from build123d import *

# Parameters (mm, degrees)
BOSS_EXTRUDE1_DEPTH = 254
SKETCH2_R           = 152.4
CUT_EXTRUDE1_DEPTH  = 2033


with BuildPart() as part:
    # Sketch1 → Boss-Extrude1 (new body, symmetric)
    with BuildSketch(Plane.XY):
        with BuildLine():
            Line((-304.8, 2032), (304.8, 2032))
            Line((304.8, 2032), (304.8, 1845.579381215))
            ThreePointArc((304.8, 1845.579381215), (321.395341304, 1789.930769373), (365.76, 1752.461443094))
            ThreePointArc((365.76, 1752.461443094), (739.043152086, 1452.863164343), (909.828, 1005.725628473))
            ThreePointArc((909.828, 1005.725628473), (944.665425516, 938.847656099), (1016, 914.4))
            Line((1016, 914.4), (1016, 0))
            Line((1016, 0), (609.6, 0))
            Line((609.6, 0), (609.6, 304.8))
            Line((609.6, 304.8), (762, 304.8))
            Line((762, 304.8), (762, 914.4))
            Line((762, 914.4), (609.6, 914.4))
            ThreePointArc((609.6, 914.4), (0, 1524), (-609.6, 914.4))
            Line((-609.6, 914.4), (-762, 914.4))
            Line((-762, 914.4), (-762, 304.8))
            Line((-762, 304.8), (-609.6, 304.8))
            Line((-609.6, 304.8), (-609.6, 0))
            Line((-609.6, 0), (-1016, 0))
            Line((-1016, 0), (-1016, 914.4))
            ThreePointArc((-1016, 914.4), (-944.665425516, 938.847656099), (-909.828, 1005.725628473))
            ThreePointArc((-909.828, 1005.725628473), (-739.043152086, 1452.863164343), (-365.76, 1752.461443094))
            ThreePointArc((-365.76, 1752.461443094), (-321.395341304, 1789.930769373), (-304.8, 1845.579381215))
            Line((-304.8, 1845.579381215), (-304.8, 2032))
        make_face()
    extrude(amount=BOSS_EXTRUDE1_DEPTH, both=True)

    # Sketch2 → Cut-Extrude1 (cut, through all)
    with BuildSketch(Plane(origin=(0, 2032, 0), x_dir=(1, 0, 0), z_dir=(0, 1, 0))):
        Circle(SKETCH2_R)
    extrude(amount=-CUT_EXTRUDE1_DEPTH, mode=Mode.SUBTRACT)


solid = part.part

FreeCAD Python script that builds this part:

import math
import FreeCAD as App
import Part
import Sketcher

V = App.Vector
Q = App.Units.Quantity

doc = App.newDocument("Part")
body = doc.addObject("PartDesign::Body", "Body")

sketch1 = body.newObject("Sketcher::SketchObject", "Sketch")
sketch1.AttachmentSupport = (doc.getObject("XY_Plane"), [""])
sketch1.MapMode = "FlatFace"
sketch1.addGeometry([
    Part.LineSegment(V(305, 2032, 0), V(-305, 2032, 0)),
    Part.LineSegment(V(-305, 2032, 0), V(-305, 1846, 0)),
    Part.ArcOfCircle(Part.Circle(V(-406, 1846, 0), V(0, 0, 1), 102), math.radians(-66), math.radians(0)),
    Part.ArcOfCircle(Part.Circle(V(0, 914, 0), V(0, 0, 1), 914), math.radians(114), math.radians(174)),
    Part.ArcOfCircle(Part.Circle(V(-1011, 1016, 0), V(0, 0, 1), 102), math.radians(-93), math.radians(-6)),
    Part.LineSegment(V(-1016, 914, 0), V(-1016, 0, 0)),
    Part.LineSegment(V(-1016, 0, 0), V(-610, 0, 0)),
    Part.LineSegment(V(-610, 0, 0), V(-610, 305, 0)),
    Part.LineSegment(V(-610, 305, 0), V(-762, 305, 0)),
    Part.LineSegment(V(-762, 305, 0), V(-762, 914, 0)),
    Part.LineSegment(V(-762, 914, 0), V(-610, 914, 0)),
    Part.ArcOfCircle(Part.Circle(V(0, 914, 0), V(0, 0, 1), 610), math.radians(0), math.radians(180)),
    Part.LineSegment(V(610, 914, 0), V(762, 914, 0)),
    Part.LineSegment(V(762, 914, 0), V(762, 305, 0)),
    Part.LineSegment(V(762, 305, 0), V(610, 305, 0)),
    Part.LineSegment(V(610, 305, 0), V(610, 0, 0)),
    Part.LineSegment(V(610, 0, 0), V(1016, 0, 0)),
    Part.LineSegment(V(1016, 0, 0), V(1016, 914, 0)),
    Part.ArcOfCircle(Part.Circle(V(1011, 1016, 0), V(0, 0, 1), 102), math.radians(-174), math.radians(-87)),
    Part.ArcOfCircle(Part.Circle(V(0, 914, 0), V(0, 0, 1), 914), math.radians(6), math.radians(66)),
    Part.ArcOfCircle(Part.Circle(V(406, 1846, 0), V(0, 0, 1), 102), math.radians(180), math.radians(246)),
    Part.LineSegment(V(305, 1846, 0), V(305, 2032, 0)),
], False)
sketch1.addConstraint([
    Sketcher.Constraint("Coincident", 0, 2, 1, 1),
    Sketcher.Constraint("Tangent", 1, 2, 2, 2),
    Sketcher.Constraint("Tangent", 2, 1, 3, 1),
    Sketcher.Constraint("Tangent", 3, 2, 4, 2),
    Sketcher.Constraint("Coincident", 4, 1, 5, 1),
    Sketcher.Constraint("Coincident", 5, 2, 6, 1),
    Sketcher.Constraint("Coincident", 6, 2, 7, 1),
    Sketcher.Constraint("Coincident", 7, 2, 8, 1),
    Sketcher.Constraint("Coincident", 8, 2, 9, 1),
    Sketcher.Constraint("Coincident", 9, 2, 10, 1),
    Sketcher.Constraint("Coincident", 10, 2, 11, 2),
    Sketcher.Constraint("Coincident", 11, 1, 12, 1),
    Sketcher.Constraint("Coincident", 12, 2, 13, 1),
    Sketcher.Constraint("Coincident", 13, 2, 14, 1),
    Sketcher.Constraint("Coincident", 14, 2, 15, 1),
    Sketcher.Constraint("Coincident", 15, 2, 16, 1),
    Sketcher.Constraint("Coincident", 16, 2, 17, 1),
    Sketcher.Constraint("Coincident", 17, 2, 18, 2),
    Sketcher.Constraint("Tangent", 18, 1, 19, 1),
    Sketcher.Constraint("Tangent", 19, 2, 20, 2),
    Sketcher.Constraint("Tangent", 20, 1, 21, 1),
    Sketcher.Constraint("Coincident", 21, 2, 0, 1),
    Sketcher.Constraint("Horizontal", 0),
    Sketcher.Constraint("Vertical", 1),
    Sketcher.Constraint("Vertical", 5),
    Sketcher.Constraint("Horizontal", 6),
    Sketcher.Constraint("Vertical", 7),
    Sketcher.Constraint("Horizontal", 8),
    Sketcher.Constraint("Vertical", 9),
    Sketcher.Constraint("Horizontal", 10),
    Sketcher.Constraint("Horizontal", 12),
    Sketcher.Constraint("Vertical", 13),
    Sketcher.Constraint("Horizontal", 14),
    Sketcher.Constraint("Vertical", 15),
    Sketcher.Constraint("Horizontal", 16),
    Sketcher.Constraint("Vertical", 17),
    Sketcher.Constraint("Vertical", 21),
    Sketcher.Constraint("Coincident", 11, 3, 3, 3),
    Sketcher.Constraint("Coincident", 19, 3, 3, 3),
    Sketcher.Constraint("Equal", 2, 4),
    Sketcher.Constraint("Equal", 4, 18),
    Sketcher.Constraint("Equal", 3, 19),
    Sketcher.Constraint("Equal", 18, 20),
    Sketcher.Constraint("Symmetric", 6, 2, 15, 2, -1, 1),
    Sketcher.Constraint("Symmetric", 4, 3, 18, 3, -2),
    Sketcher.Constraint("Symmetric", 9, 2, 12, 2, -2),
    Sketcher.Constraint("Symmetric", 5, 2, 16, 2, -2),
    Sketcher.Constraint("Horizontal", 2, 3, 20, 3),
    Sketcher.Constraint("Horizontal", 19, 3, 4, 1),
    Sketcher.Constraint("Horizontal", 4, 1, 9, 2),
    Sketcher.Constraint("Horizontal", 8, 2, 13, 2),
    Sketcher.Constraint("Vertical", 7, 2, 10, 2),
    Sketcher.Constraint("Equal", 0, 9),
    Sketcher.Constraint("Radius", 2, Q("4 in")),
    Sketcher.Constraint("Radius", 3, Q("36 in")),
    Sketcher.Constraint("Radius", 11, Q("24 in")),
    Sketcher.Constraint("DistanceX", 0, 2, 0, 1, Q("24 in")),
    Sketcher.Constraint("DistanceX", 6, 1, 6, 2, Q("16 in")),
    Sketcher.Constraint("DistanceX", 8, 2, 8, 1, Q("6 in")),
    Sketcher.Constraint("DistanceY", 5, 2, 5, 1, Q("36 in")),
    Sketcher.Constraint("DistanceY", -1, 1, 0, 2, Q("80 in")),
])
pad1 = body.newObject("PartDesign::Pad", "Pad")
pad1.Profile = sketch1
pad1.Length = Q("20 in")
pad1.Midplane = True

sketch2 = body.newObject("Sketcher::SketchObject", "Sketch001")
sketch2.AttachmentSupport = (doc.getObject("XZ_Plane"), [""])
sketch2.MapMode = "FlatFace"
sketch2.AttachmentOffset = App.Placement(V(0, 0, -80 * 25.4), App.Rotation())
sketch2.addGeometry(Part.Circle(V(0, 0, 0), V(0, 0, 1), 152), False)
sketch2.addConstraint([
    Sketcher.Constraint("Coincident", 0, 3, -1, 1),
    Sketcher.Constraint("Diameter", 0, Q("12 in")),
])
pocket1 = body.newObject("PartDesign::Pocket", "Pocket")
pocket1.Profile = sketch2
pocket1.Type = "ThroughAll"
pocket1.Reversed = True

doc.recompute()
